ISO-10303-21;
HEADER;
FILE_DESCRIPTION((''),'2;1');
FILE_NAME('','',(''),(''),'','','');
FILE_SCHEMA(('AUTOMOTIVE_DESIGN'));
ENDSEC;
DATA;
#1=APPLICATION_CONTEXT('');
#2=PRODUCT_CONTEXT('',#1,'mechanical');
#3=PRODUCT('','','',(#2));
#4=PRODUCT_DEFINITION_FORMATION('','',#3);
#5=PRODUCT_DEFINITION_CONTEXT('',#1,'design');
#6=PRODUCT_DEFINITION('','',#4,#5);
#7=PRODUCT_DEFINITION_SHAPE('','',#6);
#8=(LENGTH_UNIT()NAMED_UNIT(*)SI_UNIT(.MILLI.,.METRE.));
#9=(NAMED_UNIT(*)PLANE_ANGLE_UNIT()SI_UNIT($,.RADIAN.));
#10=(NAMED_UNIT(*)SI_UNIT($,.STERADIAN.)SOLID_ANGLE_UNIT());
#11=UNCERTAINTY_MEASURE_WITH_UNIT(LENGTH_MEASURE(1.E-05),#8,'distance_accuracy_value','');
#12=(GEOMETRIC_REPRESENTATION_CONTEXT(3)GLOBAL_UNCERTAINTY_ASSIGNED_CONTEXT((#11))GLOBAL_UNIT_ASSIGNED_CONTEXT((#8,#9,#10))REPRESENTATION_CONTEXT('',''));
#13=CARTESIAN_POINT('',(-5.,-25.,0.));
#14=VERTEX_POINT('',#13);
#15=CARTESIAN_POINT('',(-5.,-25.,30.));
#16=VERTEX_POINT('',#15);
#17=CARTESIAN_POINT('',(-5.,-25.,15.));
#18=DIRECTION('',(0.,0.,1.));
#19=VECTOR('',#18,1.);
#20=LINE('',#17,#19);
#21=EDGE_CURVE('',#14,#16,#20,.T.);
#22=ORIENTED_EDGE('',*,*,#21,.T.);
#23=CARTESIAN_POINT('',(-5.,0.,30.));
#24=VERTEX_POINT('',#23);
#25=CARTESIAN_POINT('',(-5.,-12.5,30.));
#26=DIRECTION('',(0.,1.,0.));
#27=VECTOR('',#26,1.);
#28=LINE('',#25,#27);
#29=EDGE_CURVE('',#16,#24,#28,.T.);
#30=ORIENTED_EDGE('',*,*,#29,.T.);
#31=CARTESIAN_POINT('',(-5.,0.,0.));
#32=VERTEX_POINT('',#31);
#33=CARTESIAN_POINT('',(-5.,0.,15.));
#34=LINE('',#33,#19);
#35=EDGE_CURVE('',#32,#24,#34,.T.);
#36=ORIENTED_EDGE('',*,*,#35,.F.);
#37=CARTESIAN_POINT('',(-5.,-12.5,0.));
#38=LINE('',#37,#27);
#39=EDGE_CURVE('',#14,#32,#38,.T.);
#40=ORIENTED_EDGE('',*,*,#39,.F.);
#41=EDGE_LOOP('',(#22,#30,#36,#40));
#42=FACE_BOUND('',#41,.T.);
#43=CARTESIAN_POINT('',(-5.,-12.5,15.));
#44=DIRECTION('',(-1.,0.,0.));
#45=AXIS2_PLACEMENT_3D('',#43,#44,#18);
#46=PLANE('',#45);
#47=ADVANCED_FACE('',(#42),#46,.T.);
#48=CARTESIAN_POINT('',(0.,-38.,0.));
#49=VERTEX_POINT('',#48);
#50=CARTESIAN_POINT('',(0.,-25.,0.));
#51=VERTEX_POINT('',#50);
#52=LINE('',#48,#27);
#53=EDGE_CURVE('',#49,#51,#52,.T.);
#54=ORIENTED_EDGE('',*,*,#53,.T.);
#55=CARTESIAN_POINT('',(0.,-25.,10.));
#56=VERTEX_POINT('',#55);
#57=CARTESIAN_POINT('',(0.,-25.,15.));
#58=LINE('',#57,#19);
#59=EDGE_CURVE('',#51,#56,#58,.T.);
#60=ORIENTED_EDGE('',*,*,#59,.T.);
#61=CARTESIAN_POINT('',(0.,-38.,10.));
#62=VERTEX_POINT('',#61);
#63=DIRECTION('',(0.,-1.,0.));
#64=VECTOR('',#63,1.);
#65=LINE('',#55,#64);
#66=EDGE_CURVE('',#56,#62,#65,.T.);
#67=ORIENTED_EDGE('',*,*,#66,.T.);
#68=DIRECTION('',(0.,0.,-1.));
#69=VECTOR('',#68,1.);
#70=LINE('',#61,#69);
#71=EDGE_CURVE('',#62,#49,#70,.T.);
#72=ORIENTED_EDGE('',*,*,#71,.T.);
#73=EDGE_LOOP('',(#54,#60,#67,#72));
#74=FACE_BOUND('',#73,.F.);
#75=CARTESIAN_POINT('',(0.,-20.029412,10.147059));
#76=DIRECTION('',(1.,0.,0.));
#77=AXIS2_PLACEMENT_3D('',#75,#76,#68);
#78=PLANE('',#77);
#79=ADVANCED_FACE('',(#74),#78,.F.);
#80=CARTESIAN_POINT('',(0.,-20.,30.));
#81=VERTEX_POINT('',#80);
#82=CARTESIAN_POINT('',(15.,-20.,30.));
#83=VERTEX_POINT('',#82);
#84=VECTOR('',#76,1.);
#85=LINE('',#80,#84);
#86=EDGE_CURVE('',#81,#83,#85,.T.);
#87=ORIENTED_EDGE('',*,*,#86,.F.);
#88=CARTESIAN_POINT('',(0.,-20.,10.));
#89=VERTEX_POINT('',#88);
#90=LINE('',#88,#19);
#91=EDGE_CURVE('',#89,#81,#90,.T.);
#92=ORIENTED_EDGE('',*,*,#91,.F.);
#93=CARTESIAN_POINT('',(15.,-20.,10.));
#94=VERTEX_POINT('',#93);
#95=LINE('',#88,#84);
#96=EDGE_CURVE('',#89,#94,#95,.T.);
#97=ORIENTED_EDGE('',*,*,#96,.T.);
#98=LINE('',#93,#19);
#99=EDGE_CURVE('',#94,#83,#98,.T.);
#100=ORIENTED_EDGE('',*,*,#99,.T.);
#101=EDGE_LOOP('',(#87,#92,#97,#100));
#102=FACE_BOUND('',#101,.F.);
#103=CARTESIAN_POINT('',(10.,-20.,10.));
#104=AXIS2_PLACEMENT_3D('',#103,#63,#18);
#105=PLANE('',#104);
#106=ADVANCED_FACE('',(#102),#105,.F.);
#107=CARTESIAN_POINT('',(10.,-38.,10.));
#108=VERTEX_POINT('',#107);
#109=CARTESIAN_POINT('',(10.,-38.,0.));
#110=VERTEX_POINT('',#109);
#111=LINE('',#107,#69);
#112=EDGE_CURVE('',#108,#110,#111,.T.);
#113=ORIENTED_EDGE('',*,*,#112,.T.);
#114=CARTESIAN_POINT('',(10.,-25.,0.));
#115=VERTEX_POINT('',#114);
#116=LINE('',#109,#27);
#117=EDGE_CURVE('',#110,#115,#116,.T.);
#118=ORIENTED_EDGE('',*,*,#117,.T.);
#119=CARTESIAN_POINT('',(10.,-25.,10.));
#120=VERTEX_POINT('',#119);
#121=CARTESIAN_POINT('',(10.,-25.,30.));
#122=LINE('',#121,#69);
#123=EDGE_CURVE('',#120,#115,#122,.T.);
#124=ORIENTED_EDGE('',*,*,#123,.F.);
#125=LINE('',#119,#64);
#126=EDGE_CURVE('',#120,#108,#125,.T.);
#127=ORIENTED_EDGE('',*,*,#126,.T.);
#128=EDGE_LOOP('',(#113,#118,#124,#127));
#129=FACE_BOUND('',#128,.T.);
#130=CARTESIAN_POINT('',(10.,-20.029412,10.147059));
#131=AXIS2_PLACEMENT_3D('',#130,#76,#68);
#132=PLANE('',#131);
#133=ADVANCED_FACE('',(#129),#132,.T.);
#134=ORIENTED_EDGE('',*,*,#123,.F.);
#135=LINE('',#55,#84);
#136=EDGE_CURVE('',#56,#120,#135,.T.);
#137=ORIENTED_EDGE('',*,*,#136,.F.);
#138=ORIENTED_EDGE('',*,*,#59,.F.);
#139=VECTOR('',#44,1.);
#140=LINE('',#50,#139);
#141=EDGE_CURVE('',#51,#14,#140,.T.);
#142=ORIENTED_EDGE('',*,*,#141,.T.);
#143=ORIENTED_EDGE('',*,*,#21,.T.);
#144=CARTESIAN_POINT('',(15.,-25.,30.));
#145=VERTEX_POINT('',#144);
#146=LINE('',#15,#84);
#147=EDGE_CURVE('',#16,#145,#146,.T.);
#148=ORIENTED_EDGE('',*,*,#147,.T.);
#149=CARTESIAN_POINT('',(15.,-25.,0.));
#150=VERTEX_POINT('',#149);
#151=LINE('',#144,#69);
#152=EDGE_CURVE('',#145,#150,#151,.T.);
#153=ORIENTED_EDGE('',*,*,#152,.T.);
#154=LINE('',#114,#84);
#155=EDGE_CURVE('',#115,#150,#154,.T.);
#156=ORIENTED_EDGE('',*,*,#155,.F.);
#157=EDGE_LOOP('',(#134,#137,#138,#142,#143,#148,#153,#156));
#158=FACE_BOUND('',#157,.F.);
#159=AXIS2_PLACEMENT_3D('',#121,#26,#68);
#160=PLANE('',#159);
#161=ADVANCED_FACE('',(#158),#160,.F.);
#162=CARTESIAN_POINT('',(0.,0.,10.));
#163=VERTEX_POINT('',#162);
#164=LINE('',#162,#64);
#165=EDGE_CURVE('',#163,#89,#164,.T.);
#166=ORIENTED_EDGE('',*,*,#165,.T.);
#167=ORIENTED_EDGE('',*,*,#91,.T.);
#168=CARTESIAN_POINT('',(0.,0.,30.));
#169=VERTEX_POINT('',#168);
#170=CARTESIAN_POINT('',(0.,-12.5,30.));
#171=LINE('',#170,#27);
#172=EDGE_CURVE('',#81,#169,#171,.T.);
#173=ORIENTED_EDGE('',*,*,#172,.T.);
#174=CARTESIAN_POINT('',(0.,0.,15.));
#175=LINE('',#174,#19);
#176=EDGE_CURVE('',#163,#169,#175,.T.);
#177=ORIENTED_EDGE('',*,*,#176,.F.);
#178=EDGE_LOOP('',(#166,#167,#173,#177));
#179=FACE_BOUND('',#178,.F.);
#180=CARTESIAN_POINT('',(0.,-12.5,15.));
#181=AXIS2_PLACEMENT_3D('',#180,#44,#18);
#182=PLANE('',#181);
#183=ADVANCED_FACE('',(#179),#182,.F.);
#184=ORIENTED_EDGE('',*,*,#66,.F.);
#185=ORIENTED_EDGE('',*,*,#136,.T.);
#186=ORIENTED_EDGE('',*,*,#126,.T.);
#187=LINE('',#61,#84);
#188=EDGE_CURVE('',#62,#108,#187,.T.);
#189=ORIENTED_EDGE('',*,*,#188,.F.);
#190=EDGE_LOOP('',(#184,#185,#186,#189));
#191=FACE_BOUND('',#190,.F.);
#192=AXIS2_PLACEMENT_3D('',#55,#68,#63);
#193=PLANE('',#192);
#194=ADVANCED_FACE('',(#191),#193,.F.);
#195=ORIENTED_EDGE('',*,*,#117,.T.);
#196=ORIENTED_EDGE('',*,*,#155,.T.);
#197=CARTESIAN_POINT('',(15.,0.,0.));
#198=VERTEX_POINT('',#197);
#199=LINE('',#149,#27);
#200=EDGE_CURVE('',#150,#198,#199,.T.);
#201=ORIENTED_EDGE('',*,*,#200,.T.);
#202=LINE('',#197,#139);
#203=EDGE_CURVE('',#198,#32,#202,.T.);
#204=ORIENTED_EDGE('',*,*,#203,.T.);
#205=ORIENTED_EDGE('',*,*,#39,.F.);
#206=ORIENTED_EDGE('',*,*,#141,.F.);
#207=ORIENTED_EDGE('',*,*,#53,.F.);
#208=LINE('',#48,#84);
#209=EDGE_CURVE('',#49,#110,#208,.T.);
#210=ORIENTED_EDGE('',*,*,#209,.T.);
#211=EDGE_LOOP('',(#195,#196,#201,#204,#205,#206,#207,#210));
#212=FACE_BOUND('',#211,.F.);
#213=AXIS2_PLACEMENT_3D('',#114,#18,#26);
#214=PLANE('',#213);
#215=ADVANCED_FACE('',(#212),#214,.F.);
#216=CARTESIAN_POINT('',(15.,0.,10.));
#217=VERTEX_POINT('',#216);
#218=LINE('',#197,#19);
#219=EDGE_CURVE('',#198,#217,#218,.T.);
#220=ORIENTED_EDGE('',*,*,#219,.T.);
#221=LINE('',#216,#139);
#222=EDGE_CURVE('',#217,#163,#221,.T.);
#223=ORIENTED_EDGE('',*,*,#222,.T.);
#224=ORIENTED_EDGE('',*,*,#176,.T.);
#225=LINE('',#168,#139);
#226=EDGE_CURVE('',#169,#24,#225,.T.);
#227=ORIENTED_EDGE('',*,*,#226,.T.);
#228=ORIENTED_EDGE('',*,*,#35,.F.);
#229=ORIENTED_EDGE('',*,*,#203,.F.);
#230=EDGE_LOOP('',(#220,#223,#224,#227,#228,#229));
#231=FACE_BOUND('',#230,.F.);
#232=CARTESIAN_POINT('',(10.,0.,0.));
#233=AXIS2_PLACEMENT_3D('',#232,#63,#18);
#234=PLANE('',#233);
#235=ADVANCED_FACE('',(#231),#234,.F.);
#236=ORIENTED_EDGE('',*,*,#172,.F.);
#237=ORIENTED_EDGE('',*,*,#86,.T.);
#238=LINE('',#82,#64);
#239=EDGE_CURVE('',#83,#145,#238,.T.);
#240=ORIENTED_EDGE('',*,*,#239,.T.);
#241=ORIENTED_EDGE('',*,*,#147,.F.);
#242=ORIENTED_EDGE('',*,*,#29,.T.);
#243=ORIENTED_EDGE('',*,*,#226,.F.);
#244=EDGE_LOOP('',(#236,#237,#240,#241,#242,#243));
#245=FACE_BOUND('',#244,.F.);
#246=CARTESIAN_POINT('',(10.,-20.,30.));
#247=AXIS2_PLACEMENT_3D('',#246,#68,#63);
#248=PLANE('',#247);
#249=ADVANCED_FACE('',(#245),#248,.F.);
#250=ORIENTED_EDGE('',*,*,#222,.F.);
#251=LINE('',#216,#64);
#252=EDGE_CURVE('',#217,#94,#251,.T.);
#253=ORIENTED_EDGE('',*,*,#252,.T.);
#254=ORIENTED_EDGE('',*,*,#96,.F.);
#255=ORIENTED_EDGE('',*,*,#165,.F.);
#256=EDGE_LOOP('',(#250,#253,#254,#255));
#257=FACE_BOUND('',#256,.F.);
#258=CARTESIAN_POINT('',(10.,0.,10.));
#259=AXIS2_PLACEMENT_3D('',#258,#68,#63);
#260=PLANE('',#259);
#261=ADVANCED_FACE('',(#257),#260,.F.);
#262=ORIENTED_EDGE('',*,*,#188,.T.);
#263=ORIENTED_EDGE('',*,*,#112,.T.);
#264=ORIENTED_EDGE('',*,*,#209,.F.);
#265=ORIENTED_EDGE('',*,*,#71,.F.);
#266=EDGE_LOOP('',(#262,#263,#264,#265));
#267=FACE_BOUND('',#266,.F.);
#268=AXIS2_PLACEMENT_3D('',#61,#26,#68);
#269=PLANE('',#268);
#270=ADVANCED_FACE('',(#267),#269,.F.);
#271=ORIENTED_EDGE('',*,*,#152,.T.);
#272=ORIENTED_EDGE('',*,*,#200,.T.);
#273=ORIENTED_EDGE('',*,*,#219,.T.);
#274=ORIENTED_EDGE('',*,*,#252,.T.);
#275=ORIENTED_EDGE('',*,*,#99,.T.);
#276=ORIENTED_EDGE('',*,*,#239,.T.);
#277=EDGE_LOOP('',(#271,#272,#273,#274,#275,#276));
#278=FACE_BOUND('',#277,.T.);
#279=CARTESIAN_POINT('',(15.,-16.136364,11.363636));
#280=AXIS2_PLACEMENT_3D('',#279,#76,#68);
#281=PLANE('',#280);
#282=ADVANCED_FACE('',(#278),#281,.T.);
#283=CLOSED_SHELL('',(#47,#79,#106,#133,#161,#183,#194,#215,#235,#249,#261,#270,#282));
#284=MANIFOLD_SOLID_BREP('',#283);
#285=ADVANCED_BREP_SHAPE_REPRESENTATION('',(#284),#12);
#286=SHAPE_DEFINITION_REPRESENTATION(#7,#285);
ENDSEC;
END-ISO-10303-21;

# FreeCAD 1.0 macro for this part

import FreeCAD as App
import Part
import Sketcher
from FreeCAD import Vector
Q = App.Units.Quantity


def add_polygon(sketch, points):
    """Adds a closed chain of lines whose ends are joined by coincident constraints."""
    first, n = sketch.GeometryCount, len(points)
    for a, b in zip(points, points[1:] + points[:1]):
        sketch.addGeometry(Part.LineSegment(App.Vector(*a, 0), App.Vector(*b, 0)), False)
    for i in range(n):
        sketch.addConstraint(Sketcher.Constraint("Coincident", first + i, 2, first + (i + 1) % n, 1))

doc = App.newDocument("Part")
body = doc.addObject("PartDesign::Body", "Body")

sketch1 = doc.addObject("Sketcher::SketchObject", "Sketch")
body.addObject(sketch1)
sketch1.AttachmentSupport = (doc.YZ_Plane, [""])
sketch1.MapMode = "FlatFace"
add_polygon(sketch1, [(0, 0), (0, 10), (-20, 10), (-20, 30), (-25, 30), (-25, 10), (-38, 10), (-38, 0)])
sketch1.addConstraint([
    Sketcher.Constraint("Vertical", 0),
    Sketcher.Constraint("Horizontal", 1),
    Sketcher.Constraint("Vertical", 2),
    Sketcher.Constraint("Horizontal", 3),
    Sketcher.Constraint("Vertical", 4),
    Sketcher.Constraint("Horizontal", 5),
    Sketcher.Constraint("Vertical", 6),
    Sketcher.Constraint("Horizontal", 7),
    Sketcher.Constraint("Coincident", 7, 2, -1, 1),
    Sketcher.Constraint("Horizontal", 1, 2, 4, 2),
    Sketcher.Constraint("Equal", 1, 2),
    Sketcher.Constraint("DistanceX", 1, 2, 1, 1, Q("20 mm")),
    Sketcher.Constraint("DistanceX", 3, 2, 3, 1, Q("5 mm")),
    Sketcher.Constraint("DistanceX", 5, 2, 5, 1, Q("13 mm")),
    Sketcher.Constraint("DistanceY", 0, 1, 0, 2, Q("10 mm")),
])
pad1 = doc.addObject("PartDesign::Pad", "Pad")
body.addObject(pad1)
pad1.Profile = sketch1
pad1.Length = 10

sketch2 = doc.addObject("Sketcher::SketchObject", "Sketch001")
body.addObject(sketch2)
sketch2.AttachmentSupport = (doc.YZ_Plane, [""])
sketch2.MapMode = "FlatFace"
add_polygon(sketch2, [(0, 0), (-25, 0), (-25, 30), (0, 30)])
sketch2.addConstraint([
    Sketcher.Constraint("Horizontal", 0),
    Sketcher.Constraint("Vertical", 1),
    Sketcher.Constraint("Horizontal", 2),
    Sketcher.Constraint("Vertical", 3),
    Sketcher.Constraint("Coincident", 3, 2, -1, 1),
    Sketcher.Constraint("DistanceX", 0, 2, 0, 1, Q("25 mm")),
    Sketcher.Constraint("DistanceY", 1, 1, 1, 2, Q("30 mm")),
])
pad2 = doc.addObject("PartDesign::Pad", "Pad001")
body.addObject(pad2)
pad2.Profile = sketch2
pad2.Length = 5
pad2.Reversed = True

sketch3 = doc.addObject("Sketcher::SketchObject", "Sketch002")
body.addObject(sketch3)
sketch3.AttachmentSupport = (doc.YZ_Plane, [""])
sketch3.MapMode = "FlatFace"
sketch3.AttachmentOffset = App.Placement(Vector(0, 0, 10), App.Rotation())
add_polygon(sketch3, [(0, 10), (-20, 10), (-20, 30), (-25, 30), (-25, 0), (0, 0)])
sketch3.addConstraint([
    Sketcher.Constraint("Horizontal", 0),
    Sketcher.Constraint("Vertical", 1),
    Sketcher.Constraint("Horizontal", 2),
    Sketcher.Constraint("Vertical", 3),
    Sketcher.Constraint("Horizontal", 4),
    Sketcher.Constraint("Vertical", 5),
    Sketcher.Constraint("Coincident", 4, 2, -1, 1),
    Sketcher.Constraint("Equal", 0, 1),
    Sketcher.Constraint("DistanceX", 0, 2, 0, 1, Q("20 mm")),
    Sketcher.Constraint("DistanceX", 2, 2, 2, 1, Q("5 mm")),
    Sketcher.Constraint("DistanceY", 3, 2, 3, 1, Q("30 mm")),
])
pad3 = doc.addObject("PartDesign::Pad", "Pad002")
body.addObject(pad3)
pad3.Profile = sketch3
pad3.Length = 5

doc.recompute()
